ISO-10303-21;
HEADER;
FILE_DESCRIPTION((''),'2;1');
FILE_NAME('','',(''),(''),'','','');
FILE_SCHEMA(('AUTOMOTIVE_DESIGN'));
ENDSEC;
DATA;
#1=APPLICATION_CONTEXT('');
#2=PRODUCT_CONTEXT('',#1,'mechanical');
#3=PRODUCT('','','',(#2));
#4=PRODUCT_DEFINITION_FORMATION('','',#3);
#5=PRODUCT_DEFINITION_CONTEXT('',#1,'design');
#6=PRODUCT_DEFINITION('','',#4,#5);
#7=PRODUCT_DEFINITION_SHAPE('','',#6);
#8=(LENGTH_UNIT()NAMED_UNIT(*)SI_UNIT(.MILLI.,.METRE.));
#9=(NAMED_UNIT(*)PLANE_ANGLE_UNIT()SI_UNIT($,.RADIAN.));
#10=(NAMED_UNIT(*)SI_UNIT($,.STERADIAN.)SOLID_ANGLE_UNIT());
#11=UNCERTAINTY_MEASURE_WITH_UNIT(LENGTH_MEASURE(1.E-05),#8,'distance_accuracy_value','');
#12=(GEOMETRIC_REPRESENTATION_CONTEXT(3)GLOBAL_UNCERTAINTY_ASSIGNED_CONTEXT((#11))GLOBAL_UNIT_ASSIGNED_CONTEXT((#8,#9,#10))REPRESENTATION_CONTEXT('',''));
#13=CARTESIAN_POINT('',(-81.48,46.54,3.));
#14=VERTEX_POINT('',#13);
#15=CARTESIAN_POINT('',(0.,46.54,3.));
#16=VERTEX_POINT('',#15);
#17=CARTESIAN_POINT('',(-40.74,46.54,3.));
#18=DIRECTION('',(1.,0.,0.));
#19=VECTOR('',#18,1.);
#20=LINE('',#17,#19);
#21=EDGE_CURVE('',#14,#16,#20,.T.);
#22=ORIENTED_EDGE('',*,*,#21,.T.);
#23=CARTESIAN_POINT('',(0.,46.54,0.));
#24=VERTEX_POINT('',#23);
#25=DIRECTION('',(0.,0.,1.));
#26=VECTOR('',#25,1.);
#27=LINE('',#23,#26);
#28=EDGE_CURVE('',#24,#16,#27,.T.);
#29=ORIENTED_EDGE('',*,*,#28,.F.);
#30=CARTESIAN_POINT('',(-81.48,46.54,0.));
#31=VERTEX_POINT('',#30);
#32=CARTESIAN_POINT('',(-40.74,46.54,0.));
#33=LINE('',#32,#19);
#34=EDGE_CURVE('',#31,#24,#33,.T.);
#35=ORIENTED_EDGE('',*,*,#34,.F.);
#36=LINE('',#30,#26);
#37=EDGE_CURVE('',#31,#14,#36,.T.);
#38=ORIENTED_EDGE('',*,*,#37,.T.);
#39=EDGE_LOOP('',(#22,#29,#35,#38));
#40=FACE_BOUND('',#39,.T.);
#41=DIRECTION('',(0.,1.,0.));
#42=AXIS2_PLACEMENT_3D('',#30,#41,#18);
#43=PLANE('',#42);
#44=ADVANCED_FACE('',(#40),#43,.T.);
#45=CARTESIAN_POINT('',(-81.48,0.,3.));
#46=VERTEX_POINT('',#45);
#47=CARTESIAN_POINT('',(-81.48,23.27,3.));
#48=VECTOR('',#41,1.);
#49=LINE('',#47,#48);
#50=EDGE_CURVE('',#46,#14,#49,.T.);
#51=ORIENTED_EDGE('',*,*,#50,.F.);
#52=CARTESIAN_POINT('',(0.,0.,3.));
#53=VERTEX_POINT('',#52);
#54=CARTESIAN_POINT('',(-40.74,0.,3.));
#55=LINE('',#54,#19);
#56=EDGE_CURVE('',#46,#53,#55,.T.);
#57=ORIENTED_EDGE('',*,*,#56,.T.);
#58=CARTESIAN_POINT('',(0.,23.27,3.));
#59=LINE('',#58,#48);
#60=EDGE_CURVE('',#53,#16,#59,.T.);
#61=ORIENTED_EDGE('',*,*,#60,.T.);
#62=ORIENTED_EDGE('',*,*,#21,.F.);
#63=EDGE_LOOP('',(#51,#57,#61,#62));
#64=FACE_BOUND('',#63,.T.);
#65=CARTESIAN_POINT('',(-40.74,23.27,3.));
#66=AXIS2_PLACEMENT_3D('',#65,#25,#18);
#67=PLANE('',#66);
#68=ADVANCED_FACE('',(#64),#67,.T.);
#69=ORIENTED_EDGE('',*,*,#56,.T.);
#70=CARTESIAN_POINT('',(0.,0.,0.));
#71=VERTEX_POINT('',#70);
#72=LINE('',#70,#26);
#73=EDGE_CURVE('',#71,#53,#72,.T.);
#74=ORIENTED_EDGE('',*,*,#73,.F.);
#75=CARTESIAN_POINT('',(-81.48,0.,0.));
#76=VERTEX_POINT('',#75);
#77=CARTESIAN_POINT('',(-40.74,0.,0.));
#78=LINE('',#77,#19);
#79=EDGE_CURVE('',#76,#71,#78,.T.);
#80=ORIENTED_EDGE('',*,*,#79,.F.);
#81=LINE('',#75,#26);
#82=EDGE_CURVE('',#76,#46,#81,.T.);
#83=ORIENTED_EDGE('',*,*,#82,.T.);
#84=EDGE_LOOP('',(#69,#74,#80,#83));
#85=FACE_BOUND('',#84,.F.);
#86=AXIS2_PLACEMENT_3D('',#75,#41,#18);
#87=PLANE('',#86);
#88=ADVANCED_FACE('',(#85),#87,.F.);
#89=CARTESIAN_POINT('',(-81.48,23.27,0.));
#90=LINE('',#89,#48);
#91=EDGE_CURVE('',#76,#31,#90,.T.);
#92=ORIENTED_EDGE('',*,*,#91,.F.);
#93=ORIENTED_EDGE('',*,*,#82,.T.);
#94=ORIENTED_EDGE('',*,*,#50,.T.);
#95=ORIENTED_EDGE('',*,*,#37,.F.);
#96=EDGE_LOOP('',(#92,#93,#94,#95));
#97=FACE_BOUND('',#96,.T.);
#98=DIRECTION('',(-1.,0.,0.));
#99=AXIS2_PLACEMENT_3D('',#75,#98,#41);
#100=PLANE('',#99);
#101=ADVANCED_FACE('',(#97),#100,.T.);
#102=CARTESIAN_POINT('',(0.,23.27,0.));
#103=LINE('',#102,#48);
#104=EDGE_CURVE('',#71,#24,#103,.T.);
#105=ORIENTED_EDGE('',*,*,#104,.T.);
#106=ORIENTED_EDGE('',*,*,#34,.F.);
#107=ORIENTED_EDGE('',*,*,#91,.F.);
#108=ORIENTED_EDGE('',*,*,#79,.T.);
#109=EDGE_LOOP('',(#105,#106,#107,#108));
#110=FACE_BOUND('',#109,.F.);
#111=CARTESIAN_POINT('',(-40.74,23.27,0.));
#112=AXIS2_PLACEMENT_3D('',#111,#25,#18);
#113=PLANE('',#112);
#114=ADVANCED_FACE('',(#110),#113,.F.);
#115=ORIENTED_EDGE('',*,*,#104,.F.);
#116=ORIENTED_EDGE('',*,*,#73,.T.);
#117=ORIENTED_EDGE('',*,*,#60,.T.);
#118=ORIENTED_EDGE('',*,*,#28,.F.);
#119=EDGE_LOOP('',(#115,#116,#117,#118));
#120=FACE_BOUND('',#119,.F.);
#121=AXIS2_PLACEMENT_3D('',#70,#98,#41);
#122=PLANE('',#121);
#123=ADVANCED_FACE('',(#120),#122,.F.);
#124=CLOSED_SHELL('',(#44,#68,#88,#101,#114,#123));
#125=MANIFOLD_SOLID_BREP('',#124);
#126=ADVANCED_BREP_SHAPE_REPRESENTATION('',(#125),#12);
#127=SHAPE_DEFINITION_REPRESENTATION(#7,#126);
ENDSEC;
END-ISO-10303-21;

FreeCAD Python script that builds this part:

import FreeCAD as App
import Part
import Sketcher
Q = App.Units.Quantity


def add_polygon(sketch, points):
    """Adds a closed chain of lines whose ends are joined by coincident constraints."""
    first, n = sketch.GeometryCount, len(points)
    for a, b in zip(points, points[1:] + points[:1]):
        sketch.addGeometry(Part.LineSegment(App.Vector(*a, 0), App.Vector(*b, 0)), False)
    for i in range(n):
        sketch.addConstraint(Sketcher.Constraint("Coincident", first + i, 2, first + (i + 1) % n, 1))

doc = App.newDocument("Part")
body = doc.addObject("PartDesign::Body", "Body")

# Sketch on XY plane
sketch1 = body.newObject("Sketcher::SketchObject", "Sketch")
sketch1.AttachmentSupport = (doc.getObject("XY_Plane"), [""])
sketch1.MapMode = "FlatFace"
add_polygon(sketch1, [(-81, 47), (-81, 0), (0, 0), (0, 47)])  # lines 0-3
sketch1.addConstraint([
    Sketcher.Constraint("Vertical", 0),
    Sketcher.Constraint("Horizontal", 1),
    Sketcher.Constraint("Vertical", 2),
    Sketcher.Constraint("Horizontal", 3),
    Sketcher.Constraint("Coincident", 1, 2, -1, 1),
    Sketcher.Constraint("DistanceX", 1, 1, 1, 2, Q("81.48 mm")),
    Sketcher.Constraint("DistanceY", 0, 2, 0, 1, Q("46.54 mm")),
])
pad1 = body.newObject("PartDesign::Pad", "Pad")
pad1.Profile = sketch1
pad1.Length = 3

doc.recompute()
